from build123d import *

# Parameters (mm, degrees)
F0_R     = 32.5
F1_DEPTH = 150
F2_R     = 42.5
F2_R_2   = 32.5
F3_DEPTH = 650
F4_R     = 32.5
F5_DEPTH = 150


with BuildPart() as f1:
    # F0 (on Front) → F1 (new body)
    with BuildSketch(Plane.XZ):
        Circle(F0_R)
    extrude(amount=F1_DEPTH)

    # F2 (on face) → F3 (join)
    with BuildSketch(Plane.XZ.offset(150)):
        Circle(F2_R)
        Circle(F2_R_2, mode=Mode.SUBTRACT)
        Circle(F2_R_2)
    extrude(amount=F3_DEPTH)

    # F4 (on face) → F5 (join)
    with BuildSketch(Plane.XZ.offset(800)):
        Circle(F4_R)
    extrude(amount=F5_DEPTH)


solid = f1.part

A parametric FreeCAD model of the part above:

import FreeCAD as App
import Part
import Sketcher

V = App.Vector

doc = App.newDocument("Part")
body = doc.addObject("PartDesign::Body", "Body")

sketch1 = doc.addObject("Sketcher::SketchObject", "Sketch")
body.addObject(sketch1)
sketch1.AttachmentSupport = (doc.XZ_Plane, [""])
sketch1.MapMode = "FlatFace"
sketch1.addGeometry(Part.Circle(V(0, 0, 0), V(0, 0, 1), 32), False)
sketch1.addConstraint([
    Sketcher.Constraint("Coincident", 0, 3, -1, 1),
    Sketcher.Constraint("Diameter", 0, 65.0),
])
pad1 = doc.addObject("PartDesign::Pad", "Pad")
body.addObject(pad1)
pad1.Profile = sketch1
pad1.Length = 150

sketch2 = doc.addObject("Sketcher::SketchObject", "Sketch001")
body.addObject(sketch2)
sketch2.AttachmentSupport = (doc.XZ_Plane, [""])
sketch2.MapMode = "FlatFace"
sketch2.AttachmentOffset = App.Placement(V(0, 0, 150), App.Rotation())
sketch2.addGeometry(Part.Circle(V(0, 0, 0), V(0, 0, 1), 42), False)
sketch2.addConstraint([
    Sketcher.Constraint("Coincident", 0, 3, -1, 1),
    Sketcher.Constraint("Diameter", 0, 85.0),
])
pad2 = doc.addObject("PartDesign::Pad", "Pad001")
body.addObject(pad2)
pad2.Profile = sketch2
pad2.Length = 650

sketch3 = doc.addObject("Sketcher::SketchObject", "Sketch002")
body.addObject(sketch3)
sketch3.AttachmentSupport = (doc.XZ_Plane, [""])
sketch3.MapMode = "FlatFace"
sketch3.AttachmentOffset = App.Placement(V(0, 0, 800), App.Rotation())
sketch3.addGeometry(Part.Circle(V(0, 0, 0), V(0, 0, 1), 32), False)
sketch3.addConstraint([
    Sketcher.Constraint("Coincident", 0, 3, -1, 1),
    Sketcher.Constraint("Diameter", 0, 65.0),
])
pad3 = doc.addObject("PartDesign::Pad", "Pad002")
body.addObject(pad3)
pad3.Profile = sketch3
pad3.Length = 150

doc.recompute()
